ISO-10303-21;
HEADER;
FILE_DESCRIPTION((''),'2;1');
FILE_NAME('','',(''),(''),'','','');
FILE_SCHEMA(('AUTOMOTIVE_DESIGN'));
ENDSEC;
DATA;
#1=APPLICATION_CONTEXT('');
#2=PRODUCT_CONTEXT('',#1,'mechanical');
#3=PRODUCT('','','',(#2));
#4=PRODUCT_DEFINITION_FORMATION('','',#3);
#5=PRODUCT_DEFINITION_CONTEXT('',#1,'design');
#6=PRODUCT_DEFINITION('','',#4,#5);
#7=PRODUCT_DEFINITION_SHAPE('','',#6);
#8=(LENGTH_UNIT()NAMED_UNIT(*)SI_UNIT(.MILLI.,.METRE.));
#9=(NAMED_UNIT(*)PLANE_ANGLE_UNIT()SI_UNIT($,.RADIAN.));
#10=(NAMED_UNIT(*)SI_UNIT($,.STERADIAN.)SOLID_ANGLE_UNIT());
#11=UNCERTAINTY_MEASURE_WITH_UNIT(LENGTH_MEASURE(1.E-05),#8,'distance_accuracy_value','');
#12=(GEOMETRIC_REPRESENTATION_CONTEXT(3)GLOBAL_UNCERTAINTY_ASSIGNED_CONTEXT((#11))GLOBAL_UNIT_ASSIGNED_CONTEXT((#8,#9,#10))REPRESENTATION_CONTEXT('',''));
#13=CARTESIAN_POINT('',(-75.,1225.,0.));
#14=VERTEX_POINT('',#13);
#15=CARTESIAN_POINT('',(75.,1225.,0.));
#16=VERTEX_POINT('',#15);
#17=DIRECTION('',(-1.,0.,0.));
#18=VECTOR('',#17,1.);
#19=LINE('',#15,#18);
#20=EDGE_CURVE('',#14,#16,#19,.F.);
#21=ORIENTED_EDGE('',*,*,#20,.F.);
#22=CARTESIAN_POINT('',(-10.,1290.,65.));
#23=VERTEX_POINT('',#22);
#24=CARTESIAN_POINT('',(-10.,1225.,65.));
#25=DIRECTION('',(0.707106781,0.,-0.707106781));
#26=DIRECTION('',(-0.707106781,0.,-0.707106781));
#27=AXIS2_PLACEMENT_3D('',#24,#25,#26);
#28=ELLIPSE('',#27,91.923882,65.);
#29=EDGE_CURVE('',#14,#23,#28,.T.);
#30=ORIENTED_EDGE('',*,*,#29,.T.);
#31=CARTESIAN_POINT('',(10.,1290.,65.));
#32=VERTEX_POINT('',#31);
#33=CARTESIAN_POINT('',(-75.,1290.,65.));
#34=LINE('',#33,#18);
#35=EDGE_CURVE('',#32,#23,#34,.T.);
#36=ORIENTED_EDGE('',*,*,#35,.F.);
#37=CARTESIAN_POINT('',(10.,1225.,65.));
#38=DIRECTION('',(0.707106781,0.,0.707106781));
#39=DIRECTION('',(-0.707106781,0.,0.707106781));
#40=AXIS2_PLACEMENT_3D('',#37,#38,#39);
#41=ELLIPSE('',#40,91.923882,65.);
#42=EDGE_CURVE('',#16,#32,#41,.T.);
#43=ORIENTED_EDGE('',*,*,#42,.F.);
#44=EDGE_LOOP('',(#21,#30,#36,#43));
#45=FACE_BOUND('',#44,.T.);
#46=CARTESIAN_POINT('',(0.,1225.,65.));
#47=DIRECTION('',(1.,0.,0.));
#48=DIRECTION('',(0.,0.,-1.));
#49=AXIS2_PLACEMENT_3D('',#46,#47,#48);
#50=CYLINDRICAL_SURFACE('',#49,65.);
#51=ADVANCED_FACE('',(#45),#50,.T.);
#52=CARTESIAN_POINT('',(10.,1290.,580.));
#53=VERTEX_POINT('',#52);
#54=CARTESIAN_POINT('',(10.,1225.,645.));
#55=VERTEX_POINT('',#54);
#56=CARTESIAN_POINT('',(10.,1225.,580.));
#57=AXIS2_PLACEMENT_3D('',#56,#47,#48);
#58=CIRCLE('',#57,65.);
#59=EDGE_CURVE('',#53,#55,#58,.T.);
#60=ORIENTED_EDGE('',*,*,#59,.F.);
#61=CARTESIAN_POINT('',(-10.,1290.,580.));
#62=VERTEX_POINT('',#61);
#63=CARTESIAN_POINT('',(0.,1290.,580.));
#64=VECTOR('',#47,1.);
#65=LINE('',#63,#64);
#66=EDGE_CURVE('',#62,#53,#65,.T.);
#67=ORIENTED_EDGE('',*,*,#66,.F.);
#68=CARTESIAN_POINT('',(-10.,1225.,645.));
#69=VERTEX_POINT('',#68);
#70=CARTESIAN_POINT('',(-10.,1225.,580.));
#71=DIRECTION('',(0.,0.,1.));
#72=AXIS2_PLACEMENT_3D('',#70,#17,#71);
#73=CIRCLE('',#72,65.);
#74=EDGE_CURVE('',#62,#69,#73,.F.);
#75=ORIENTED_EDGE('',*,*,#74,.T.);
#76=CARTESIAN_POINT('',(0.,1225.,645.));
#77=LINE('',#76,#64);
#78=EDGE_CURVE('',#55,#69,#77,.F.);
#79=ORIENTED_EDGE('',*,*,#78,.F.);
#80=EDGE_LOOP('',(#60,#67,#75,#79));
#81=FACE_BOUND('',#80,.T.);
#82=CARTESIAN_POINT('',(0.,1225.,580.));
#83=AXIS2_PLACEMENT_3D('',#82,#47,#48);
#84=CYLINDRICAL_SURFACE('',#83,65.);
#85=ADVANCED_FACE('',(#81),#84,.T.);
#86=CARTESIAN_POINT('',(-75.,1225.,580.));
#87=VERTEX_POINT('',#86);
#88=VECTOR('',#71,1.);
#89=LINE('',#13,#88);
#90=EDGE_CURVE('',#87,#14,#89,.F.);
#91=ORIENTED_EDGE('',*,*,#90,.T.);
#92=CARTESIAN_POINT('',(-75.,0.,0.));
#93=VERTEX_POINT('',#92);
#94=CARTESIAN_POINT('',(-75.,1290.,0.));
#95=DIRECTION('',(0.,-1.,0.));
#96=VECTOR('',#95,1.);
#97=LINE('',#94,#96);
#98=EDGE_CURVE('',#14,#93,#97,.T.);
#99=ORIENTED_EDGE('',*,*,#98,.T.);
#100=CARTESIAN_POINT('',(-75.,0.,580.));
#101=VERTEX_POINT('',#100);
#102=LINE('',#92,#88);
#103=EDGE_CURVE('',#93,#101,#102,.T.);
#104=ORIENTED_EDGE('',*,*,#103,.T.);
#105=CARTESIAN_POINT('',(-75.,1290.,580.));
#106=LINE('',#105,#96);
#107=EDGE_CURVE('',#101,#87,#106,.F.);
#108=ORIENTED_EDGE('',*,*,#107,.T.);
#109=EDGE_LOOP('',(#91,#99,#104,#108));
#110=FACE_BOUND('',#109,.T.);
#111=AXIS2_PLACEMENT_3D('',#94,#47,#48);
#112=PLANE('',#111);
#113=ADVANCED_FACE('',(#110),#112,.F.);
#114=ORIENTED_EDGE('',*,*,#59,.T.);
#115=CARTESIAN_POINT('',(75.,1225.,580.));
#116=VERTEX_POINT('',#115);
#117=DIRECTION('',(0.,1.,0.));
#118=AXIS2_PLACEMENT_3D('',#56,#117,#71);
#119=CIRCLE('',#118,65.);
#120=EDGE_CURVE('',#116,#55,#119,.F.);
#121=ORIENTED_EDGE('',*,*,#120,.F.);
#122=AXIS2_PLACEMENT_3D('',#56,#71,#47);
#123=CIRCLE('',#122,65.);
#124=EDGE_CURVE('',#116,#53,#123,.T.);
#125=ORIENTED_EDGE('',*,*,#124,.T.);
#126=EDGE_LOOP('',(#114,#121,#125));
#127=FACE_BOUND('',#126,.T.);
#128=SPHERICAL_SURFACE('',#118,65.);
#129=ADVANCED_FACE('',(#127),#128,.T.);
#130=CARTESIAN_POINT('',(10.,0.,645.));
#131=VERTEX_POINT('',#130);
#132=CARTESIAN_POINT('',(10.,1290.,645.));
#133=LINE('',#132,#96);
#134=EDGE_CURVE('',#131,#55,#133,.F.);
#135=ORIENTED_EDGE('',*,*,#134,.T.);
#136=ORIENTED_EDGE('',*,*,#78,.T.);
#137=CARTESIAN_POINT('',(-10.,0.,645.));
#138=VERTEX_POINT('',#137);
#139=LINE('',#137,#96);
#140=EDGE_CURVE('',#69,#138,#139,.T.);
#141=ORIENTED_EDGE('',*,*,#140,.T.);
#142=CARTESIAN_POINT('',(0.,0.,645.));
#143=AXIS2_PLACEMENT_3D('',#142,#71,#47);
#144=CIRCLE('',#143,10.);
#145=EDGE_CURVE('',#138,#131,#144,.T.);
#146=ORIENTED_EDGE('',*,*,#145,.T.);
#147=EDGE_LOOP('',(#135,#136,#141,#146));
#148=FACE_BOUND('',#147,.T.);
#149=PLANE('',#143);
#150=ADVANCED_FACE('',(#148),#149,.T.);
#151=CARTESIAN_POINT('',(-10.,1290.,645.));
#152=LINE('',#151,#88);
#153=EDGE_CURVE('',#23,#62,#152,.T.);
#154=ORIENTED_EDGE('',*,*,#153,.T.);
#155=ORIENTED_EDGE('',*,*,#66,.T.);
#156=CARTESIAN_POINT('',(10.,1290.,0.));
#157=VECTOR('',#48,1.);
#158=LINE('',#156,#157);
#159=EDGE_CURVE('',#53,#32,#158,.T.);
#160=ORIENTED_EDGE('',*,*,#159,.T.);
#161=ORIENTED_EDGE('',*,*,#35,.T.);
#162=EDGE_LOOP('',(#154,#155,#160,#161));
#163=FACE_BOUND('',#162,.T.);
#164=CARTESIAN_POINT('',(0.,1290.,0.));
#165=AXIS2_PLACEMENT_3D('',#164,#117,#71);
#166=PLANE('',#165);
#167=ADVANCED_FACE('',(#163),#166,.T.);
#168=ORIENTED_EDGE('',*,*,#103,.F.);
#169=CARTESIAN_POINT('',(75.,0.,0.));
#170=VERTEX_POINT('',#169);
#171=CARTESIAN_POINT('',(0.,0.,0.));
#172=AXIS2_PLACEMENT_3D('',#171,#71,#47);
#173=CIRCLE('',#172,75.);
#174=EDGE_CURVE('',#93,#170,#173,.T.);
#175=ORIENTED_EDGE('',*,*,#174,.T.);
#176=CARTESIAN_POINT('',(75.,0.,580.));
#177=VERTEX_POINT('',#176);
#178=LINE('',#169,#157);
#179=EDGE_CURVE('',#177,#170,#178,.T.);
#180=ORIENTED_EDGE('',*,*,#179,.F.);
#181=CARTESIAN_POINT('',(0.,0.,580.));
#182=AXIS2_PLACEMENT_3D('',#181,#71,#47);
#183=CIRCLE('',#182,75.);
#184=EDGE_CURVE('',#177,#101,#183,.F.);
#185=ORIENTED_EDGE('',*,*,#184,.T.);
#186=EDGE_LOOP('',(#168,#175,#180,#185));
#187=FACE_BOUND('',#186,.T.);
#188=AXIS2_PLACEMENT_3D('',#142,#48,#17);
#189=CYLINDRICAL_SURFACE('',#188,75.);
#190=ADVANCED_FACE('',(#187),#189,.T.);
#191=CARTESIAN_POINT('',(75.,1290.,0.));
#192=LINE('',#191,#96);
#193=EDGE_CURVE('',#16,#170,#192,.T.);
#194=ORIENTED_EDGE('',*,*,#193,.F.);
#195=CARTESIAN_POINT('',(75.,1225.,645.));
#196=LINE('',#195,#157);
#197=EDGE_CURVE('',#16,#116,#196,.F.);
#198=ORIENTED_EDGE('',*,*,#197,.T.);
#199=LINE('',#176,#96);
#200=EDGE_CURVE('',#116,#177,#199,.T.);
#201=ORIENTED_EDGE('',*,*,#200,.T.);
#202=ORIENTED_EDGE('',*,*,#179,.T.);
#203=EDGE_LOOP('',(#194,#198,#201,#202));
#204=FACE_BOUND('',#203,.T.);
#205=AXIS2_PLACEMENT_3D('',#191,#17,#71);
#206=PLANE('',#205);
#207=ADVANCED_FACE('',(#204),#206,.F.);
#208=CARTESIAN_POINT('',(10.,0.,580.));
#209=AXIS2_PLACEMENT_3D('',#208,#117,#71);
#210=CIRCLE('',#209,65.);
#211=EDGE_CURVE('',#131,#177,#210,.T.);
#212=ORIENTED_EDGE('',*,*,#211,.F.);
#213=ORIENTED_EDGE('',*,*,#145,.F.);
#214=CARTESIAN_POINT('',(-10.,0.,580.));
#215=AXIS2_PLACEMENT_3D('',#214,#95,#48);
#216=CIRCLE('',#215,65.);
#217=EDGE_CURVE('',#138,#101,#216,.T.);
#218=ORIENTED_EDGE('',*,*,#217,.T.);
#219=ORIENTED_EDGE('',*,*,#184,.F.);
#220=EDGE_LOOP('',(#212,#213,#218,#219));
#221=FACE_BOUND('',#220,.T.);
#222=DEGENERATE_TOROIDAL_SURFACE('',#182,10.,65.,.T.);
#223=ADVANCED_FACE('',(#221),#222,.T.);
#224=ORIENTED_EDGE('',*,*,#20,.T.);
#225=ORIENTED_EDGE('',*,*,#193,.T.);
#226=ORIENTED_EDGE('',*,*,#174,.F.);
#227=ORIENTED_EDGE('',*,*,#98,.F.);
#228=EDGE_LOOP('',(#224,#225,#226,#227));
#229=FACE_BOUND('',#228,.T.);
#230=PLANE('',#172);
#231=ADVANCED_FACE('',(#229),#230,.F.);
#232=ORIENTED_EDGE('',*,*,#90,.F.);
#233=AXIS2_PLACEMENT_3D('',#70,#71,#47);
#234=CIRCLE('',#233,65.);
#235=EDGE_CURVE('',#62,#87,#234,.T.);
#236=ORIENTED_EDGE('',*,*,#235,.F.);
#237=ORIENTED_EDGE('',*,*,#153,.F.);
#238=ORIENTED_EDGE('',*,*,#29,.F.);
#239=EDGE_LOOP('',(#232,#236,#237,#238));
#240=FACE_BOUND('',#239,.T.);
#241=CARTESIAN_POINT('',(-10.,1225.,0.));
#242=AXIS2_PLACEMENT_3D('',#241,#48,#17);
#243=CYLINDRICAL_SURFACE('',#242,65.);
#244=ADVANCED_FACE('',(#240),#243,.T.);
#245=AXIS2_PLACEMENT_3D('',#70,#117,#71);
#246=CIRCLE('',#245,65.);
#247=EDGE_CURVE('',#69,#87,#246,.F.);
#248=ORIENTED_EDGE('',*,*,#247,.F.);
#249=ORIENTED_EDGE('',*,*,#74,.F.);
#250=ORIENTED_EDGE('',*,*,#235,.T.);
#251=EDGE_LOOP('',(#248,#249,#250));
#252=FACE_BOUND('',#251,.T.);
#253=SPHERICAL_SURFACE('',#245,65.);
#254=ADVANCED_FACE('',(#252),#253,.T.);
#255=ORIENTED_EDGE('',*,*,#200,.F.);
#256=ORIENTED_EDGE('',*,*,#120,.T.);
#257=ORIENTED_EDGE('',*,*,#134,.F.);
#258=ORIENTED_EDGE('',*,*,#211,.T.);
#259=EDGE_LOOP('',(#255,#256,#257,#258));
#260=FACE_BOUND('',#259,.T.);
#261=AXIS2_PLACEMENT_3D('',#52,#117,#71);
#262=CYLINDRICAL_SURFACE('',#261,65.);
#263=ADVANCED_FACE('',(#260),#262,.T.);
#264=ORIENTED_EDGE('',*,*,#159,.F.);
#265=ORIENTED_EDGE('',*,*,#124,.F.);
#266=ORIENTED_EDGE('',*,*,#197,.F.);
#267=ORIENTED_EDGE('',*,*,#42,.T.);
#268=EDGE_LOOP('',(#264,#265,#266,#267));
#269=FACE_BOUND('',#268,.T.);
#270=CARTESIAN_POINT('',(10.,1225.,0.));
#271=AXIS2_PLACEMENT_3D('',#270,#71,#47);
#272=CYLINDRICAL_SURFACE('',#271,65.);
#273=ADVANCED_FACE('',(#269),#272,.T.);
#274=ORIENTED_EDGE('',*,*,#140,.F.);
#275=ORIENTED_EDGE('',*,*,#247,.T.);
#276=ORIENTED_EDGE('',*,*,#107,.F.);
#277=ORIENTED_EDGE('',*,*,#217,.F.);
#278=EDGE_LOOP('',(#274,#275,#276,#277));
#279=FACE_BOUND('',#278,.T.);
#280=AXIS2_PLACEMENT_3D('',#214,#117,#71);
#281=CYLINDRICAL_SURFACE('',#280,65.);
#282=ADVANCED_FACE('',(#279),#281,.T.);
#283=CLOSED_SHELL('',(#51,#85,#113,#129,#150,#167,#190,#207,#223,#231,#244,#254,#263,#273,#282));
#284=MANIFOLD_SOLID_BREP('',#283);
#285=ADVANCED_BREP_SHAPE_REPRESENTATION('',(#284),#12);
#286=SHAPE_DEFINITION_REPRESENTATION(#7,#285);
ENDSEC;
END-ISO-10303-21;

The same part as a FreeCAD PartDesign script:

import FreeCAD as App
import Part
import Sketcher
from FreeCAD import Vector
Q = App.Units.Quantity


def edges_at(feature, points):
    """Names of the edges that pass closest to the given points."""
    edges = feature.Shape.Edges
    near = lambda p: min(range(len(edges)), key=lambda i: edges[i].distToShape(Part.Vertex(*p))[0])
    return sorted({f"Edge{near(p) + 1}" for p in points})

doc = App.newDocument("Part")
body = doc.addObject("PartDesign::Body", "Body")

sketch1 = body.newObject("Sketcher::SketchObject", "Sketch")
sketch1.AttachmentSupport = (doc.getObject("XY_Plane"), [""])
sketch1.MapMode = "FlatFace"
sketch1.addGeometry(Part.Circle(Vector(0, 0, 0), Vector(0, 0, 1), 75), False)
sketch1.addConstraint([
    Sketcher.Constraint("Coincident", 0, 3, -1, 1),
    Sketcher.Constraint("Diameter", 0, Q("150 mm")),
])
pad1 = body.newObject("PartDesign::Pad", "Pad")
pad1.Profile = sketch1
pad1.Length = 645

sketch2 = body.newObject("Sketcher::SketchObject", "Sketch001")
sketch2.AttachmentSupport = (doc.getObject("XZ_Plane"), [""])
sketch2.MapMode = "FlatFace"
sketch2.addGeometry([
    Part.LineSegment(Vector(-75, 0, 0), Vector(-75, 645, 0)),
    Part.LineSegment(Vector(-75, 645, 0), Vector(75, 645, 0)),
    Part.LineSegment(Vector(75, 645, 0), Vector(75, 0, 0)),
    Part.LineSegment(Vector(75, 0, 0), Vector(-75, 0, 0)),
], False)
sketch2.addConstraint([
    Sketcher.Constraint("Coincident", 0, 2, 1, 1),
    Sketcher.Constraint("Coincident", 1, 2, 2, 1),
    Sketcher.Constraint("Coincident", 2, 2, 3, 1),
    Sketcher.Constraint("Coincident", 3, 2, 0, 1),
    Sketcher.Constraint("Vertical", 0),
    Sketcher.Constraint("Horizontal", 1),
    Sketcher.Constraint("Vertical", 2),
    Sketcher.Constraint("Horizontal", 3),
    Sketcher.Constraint("Symmetric", 2, 2, 3, 2, -1, 1),
    Sketcher.Constraint("DistanceX", 1, 1, 1, 2, Q("150 mm")),
    Sketcher.Constraint("DistanceY", 0, 1, 0, 2, Q("645 mm")),
])
pad2 = body.newObject("PartDesign::Pad", "Pad001")
pad2.Profile = sketch2
pad2.Length = 1290
pad2.Reversed = True
doc.recompute()

fillet = body.newObject("PartDesign::Fillet", "Fillet")
fillet.Base = (pad2, edges_at(pad2, [
    (-75, 645, 645),
    (75, 645, 645),
    (-75, 1290, 322.5),
    (0, 1290, 645),
    (75, 1290, 322.5),
    (0, 1290, 0),
    (0, -75, 645),
]))
fillet.Radius = 65

doc.recompute()
